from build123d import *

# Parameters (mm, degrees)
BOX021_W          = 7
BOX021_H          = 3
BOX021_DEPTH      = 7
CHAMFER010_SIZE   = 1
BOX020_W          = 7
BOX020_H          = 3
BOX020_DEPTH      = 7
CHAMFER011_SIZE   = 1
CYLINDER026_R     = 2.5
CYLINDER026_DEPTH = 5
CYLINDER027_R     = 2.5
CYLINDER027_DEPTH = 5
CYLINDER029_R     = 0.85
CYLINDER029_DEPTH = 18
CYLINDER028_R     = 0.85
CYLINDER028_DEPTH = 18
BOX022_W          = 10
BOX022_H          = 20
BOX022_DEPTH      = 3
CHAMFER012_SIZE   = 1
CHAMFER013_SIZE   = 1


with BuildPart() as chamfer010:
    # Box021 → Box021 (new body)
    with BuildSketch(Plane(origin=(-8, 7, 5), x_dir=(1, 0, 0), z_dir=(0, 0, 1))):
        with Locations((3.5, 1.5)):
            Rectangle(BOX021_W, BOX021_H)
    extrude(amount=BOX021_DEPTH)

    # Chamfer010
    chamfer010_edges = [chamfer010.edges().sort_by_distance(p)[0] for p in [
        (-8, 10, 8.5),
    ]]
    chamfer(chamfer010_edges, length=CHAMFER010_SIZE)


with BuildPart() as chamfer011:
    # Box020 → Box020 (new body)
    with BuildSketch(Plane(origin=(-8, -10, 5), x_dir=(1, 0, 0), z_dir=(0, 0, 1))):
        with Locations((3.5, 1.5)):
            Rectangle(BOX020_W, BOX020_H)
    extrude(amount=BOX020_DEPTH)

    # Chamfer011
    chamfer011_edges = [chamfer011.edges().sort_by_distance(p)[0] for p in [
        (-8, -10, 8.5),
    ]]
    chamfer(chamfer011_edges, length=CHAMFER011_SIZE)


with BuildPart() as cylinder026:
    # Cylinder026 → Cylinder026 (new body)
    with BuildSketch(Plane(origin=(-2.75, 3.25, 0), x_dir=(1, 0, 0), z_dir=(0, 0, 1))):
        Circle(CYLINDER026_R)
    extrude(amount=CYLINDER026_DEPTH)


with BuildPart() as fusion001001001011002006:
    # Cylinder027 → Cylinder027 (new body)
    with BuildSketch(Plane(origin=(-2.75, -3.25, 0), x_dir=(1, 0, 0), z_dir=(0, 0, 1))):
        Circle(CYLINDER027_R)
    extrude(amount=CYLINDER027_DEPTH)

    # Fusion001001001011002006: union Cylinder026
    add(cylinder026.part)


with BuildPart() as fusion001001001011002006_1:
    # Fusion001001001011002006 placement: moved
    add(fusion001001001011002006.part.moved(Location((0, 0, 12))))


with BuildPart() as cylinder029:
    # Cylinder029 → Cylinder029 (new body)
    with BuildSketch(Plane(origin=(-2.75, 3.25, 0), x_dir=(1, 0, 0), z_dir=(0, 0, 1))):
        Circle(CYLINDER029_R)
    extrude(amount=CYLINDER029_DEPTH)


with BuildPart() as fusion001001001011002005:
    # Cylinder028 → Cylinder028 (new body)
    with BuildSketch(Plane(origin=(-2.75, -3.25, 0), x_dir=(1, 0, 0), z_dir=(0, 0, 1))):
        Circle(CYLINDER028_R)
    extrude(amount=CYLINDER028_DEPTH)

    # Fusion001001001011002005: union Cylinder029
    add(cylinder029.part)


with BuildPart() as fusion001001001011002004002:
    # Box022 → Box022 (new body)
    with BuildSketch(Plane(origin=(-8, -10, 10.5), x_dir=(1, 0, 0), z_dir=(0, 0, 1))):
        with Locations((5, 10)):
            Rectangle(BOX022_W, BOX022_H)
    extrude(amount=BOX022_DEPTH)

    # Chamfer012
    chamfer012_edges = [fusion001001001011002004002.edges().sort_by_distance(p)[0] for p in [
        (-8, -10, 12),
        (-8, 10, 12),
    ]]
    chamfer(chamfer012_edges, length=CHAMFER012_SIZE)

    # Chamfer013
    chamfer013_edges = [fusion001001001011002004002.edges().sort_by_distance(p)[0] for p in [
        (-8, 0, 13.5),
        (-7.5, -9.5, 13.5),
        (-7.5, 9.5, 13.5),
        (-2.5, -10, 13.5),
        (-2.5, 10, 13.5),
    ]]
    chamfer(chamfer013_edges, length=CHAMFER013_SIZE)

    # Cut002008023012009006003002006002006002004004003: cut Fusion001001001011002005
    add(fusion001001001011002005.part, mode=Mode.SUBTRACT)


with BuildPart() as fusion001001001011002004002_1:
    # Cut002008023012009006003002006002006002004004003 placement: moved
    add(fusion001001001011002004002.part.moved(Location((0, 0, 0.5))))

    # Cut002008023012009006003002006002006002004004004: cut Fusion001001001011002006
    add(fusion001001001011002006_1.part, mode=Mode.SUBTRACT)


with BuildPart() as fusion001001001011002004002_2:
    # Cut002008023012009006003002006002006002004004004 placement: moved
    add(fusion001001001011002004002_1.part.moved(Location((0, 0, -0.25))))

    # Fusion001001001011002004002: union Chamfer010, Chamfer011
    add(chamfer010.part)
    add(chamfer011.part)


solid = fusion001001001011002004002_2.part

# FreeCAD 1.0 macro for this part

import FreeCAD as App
import Part
import Sketcher
from FreeCAD import Vector
Q = App.Units.Quantity


def edges_at(feature, points):
    """Names of the edges that pass closest to the given points."""
    edges = feature.Shape.Edges
    near = lambda p: min(range(len(edges)), key=lambda i: edges[i].distToShape(Part.Vertex(*p))[0])
    return sorted({f"Edge{near(p) + 1}" for p in points})


def add_polygon(sketch, points):
    """Adds a closed chain of lines whose ends are joined by coincident constraints."""
    first, n = sketch.GeometryCount, len(points)
    for a, b in zip(points, points[1:] + points[:1]):
        sketch.addGeometry(Part.LineSegment(App.Vector(*a, 0), App.Vector(*b, 0)), False)
    for i in range(n):
        sketch.addConstraint(Sketcher.Constraint("Coincident", first + i, 2, first + (i + 1) % n, 1))

doc = App.newDocument("Part")
body = doc.addObject("PartDesign::Body", "Body")

# Sketch on XY plane
sketch1 = body.newObject("Sketcher::SketchObject", "Sketch")
sketch1.AttachmentSupport = (doc.getObject("XY_Plane"), [""])
sketch1.MapMode = "FlatFace"
sketch1.AttachmentOffset = App.Placement(Vector(0, 0, 5), App.Rotation())
add_polygon(sketch1, [(-8, 10), (-8, 7), (-1, 7), (-1, 10)])  # lines 0-3
sketch1.addConstraint(Sketcher.Constraint("Vertical", 0))
sketch1.addConstraint(Sketcher.Constraint("Horizontal", 1))
sketch1.addConstraint(Sketcher.Constraint("Vertical", 2))
sketch1.addConstraint(Sketcher.Constraint("Horizontal", 3))
sketch1.addConstraint(Sketcher.Constraint("DistanceX", 1, 1, 1, 2, Q("7 mm")))
sketch1.addConstraint(Sketcher.Constraint("DistanceY", 0, 2, 0, 1, Q("3 mm")))
sketch1.addConstraint(Sketcher.Constraint("DistanceX", 0, 2, -1, 1, Q("8 mm")))
sketch1.addConstraint(Sketcher.Constraint("DistanceY", -1, 1, 0, 2, Q("7 mm")))
pad1 = body.newObject("PartDesign::Pad", "Pad")
pad1.Profile = sketch1
pad1.Length = 7
doc.recompute()

chamfer = body.newObject("PartDesign::Chamfer", "Chamfer")
chamfer.Base = (pad1, edges_at(pad1, [(-8, 10, 8.5)]))
chamfer.Size = 1
body2 = doc.addObject("PartDesign::Body", "Body001")

# Sketch on XY plane
sketch2 = body2.newObject("Sketcher::SketchObject", "Sketch001")
sketch2.AttachmentSupport = (doc.getObject("XY_Plane001"), [""])
sketch2.MapMode = "FlatFace"
sketch2.AttachmentOffset = App.Placement(Vector(0, 0, 5), App.Rotation())
add_polygon(sketch2, [(-8, -7), (-8, -10), (-1, -10), (-1, -7)])  # lines 0-3
sketch2.addConstraint(Sketcher.Constraint("Vertical", 0))
sketch2.addConstraint(Sketcher.Constraint("Horizontal", 1))
sketch2.addConstraint(Sketcher.Constraint("Vertical", 2))
sketch2.addConstraint(Sketcher.Constraint("Horizontal", 3))
sketch2.addConstraint(Sketcher.Constraint("DistanceX", 1, 1, 1, 2, Q("7 mm")))
sketch2.addConstraint(Sketcher.Constraint("DistanceY", 0, 2, 0, 1, Q("3 mm")))
sketch2.addConstraint(Sketcher.Constraint("DistanceX", 0, 2, -1, 1, Q("8 mm")))
sketch2.addConstraint(Sketcher.Constraint("DistanceY", 0, 2, -1, 1, Q("10 mm")))
pad2 = body2.newObject("PartDesign::Pad", "Pad001")
pad2.Profile = sketch2
pad2.Length = 7
doc.recompute()

chamfer2 = body2.newObject("PartDesign::Chamfer", "Chamfer001")
chamfer2.Base = (pad2, edges_at(pad2, [(-8, -10, 8.5)]))
chamfer2.Size = 1
body3 = doc.addObject("PartDesign::Body", "Body002")

# Sketch on XY plane
sketch3 = body3.newObject("Sketcher::SketchObject", "Sketch002")
sketch3.AttachmentSupport = (doc.getObject("XY_Plane002"), [""])
sketch3.MapMode = "FlatFace"
sketch3.addGeometry(Part.Circle(Vector(-2.75, 3.25, 0), Vector(0, 0, 1), 2.5), False)
sketch3.addConstraint(Sketcher.Constraint("Diameter", 0, Q("5 mm")))
sketch3.addConstraint(Sketcher.Constraint("DistanceX", 0, 3, -1, 1, Q("2.75 mm")))
sketch3.addConstraint(Sketcher.Constraint("DistanceY", -1, 1, 0, 3, Q("3.25 mm")))
pad3 = body3.newObject("PartDesign::Pad", "Pad002")
pad3.Profile = sketch3
pad3.Length = 5
body4 = doc.addObject("PartDesign::Body", "Body003")
body4.AllowCompound = True

# Sketch on XY plane
sketch4 = body4.newObject("Sketcher::SketchObject", "Sketch003")
sketch4.AttachmentSupport = (doc.getObject("XY_Plane003"), [""])
sketch4.MapMode = "FlatFace"
sketch4.addGeometry(Part.Circle(Vector(-2.75, -3.25, 0), Vector(0, 0, 1), 2.5), False)
sketch4.addConstraint(Sketcher.Constraint("Diameter", 0, Q("5 mm")))
sketch4.addConstraint(Sketcher.Constraint("DistanceX", 0, 3, -1, 1, Q("2.75 mm")))
sketch4.addConstraint(Sketcher.Constraint("DistanceY", 0, 3, -1, 1, Q("3.25 mm")))
pad4 = body4.newObject("PartDesign::Pad", "Pad003")
pad4.Profile = sketch4
pad4.Length = 5
doc.recompute()

boolean = body4.newObject("PartDesign::Boolean", "Boolean")
boolean.Type = "Fuse"
boolean.addObjects([body3])
body5 = doc.addObject("PartDesign::Body", "Body004")
body5.AllowCompound = True
doc.recompute()

body4.Placement = App.Placement(Vector(0, 0, 12), App.Rotation(Vector(0, 0, 1), 0))
boolean2 = body5.newObject("PartDesign::Boolean", "Boolean001")
boolean2.Type = "Fuse"
boolean2.addObjects([body4])
body6 = doc.addObject("PartDesign::Body", "Body005")

# Sketch on XY plane
sketch5 = body6.newObject("Sketcher::SketchObject", "Sketch004")
sketch5.AttachmentSupport = (doc.getObject("XY_Plane005"), [""])
sketch5.MapMode = "FlatFace"
sketch5.addGeometry(Part.Circle(Vector(-2.75, 3.25, 0), Vector(0, 0, 1), 0.85), False)
sketch5.addConstraint(Sketcher.Constraint("Diameter", 0, Q("1.7 mm")))
sketch5.addConstraint(Sketcher.Constraint("DistanceX", 0, 3, -1, 1, Q("2.75 mm")))
sketch5.addConstraint(Sketcher.Constraint("DistanceY", -1, 1, 0, 3, Q("3.25 mm")))
pad5 = body6.newObject("PartDesign::Pad", "Pad004")
pad5.Profile = sketch5
pad5.Length = 18
body7 = doc.addObject("PartDesign::Body", "Body006")
body7.AllowCompound = True

# Sketch on XY plane
sketch6 = body7.newObject("Sketcher::SketchObject", "Sketch005")
sketch6.AttachmentSupport = (doc.getObject("XY_Plane006"), [""])
sketch6.MapMode = "FlatFace"
sketch6.addGeometry(Part.Circle(Vector(-2.75, -3.25, 0), Vector(0, 0, 1), 0.85), False)
sketch6.addConstraint(Sketcher.Constraint("Diameter", 0, Q("1.7 mm")))
sketch6.addConstraint(Sketcher.Constraint("DistanceX", 0, 3, -1, 1, Q("2.75 mm")))
sketch6.addConstraint(Sketcher.Constraint("DistanceY", 0, 3, -1, 1, Q("3.25 mm")))
pad6 = body7.newObject("PartDesign::Pad", "Pad005")
pad6.Profile = sketch6
pad6.Length = 18
doc.recompute()

boolean3 = body7.newObject("PartDesign::Boolean", "Boolean002")
boolean3.Type = "Fuse"
boolean3.addObjects([body6])
body8 = doc.addObject("PartDesign::Body", "Body007")

# Sketch on XY plane
sketch7 = body8.newObject("Sketcher::SketchObject", "Sketch006")
sketch7.AttachmentSupport = (doc.getObject("XY_Plane007"), [""])
sketch7.MapMode = "FlatFace"
sketch7.AttachmentOffset = App.Placement(Vector(0, 0, 10.5), App.Rotation())
add_polygon(sketch7, [(-8, 10), (-8, -10), (2, -10), (2, 10)])  # lines 0-3
sketch7.addConstraint(Sketcher.Constraint("Vertical", 0))
sketch7.addConstraint(Sketcher.Constraint("Horizontal", 1))
sketch7.addConstraint(Sketcher.Constraint("Vertical", 2))
sketch7.addConstraint(Sketcher.Constraint("Horizontal", 3))
sketch7.addConstraint(Sketcher.Constraint("DistanceX", 1, 1, 1, 2, Q("10 mm")))
sketch7.addConstraint(Sketcher.Constraint("DistanceY", 0, 2, 0, 1, Q("20 mm")))
sketch7.addConstraint(Sketcher.Constraint("DistanceX", 0, 2, -1, 1, Q("8 mm")))
sketch7.addConstraint(Sketcher.Constraint("DistanceY", 0, 2, -1, 1, Q("10 mm")))
pad7 = body8.newObject("PartDesign::Pad", "Pad006")
pad7.Profile = sketch7
pad7.Length = 3
doc.recompute()

chamfer3 = body8.newObject("PartDesign::Chamfer", "Chamfer002")
chamfer3.Base = (pad7, edges_at(pad7, [(-8, -10, 12), (-8, 10, 12)]))
chamfer3.Size = 1
doc.recompute()

chamfer4 = body8.newObject("PartDesign::Chamfer", "Chamfer003")
chamfer4.Base = (chamfer3, edges_at(chamfer3, [
    (-8, 0, 13.5),
    (-7.5, -9.5, 13.5),
    (-7.5, 9.5, 13.5),
    (-2.5, -10, 13.5),
    (-2.5, 10, 13.5),
]))
chamfer4.Size = 1
doc.recompute()

boolean4 = body8.newObject("PartDesign::Boolean", "Boolean003")
boolean4.Type = "Cut"
boolean4.addObjects([body7])
body9 = doc.addObject("PartDesign::Body", "Body008")
doc.recompute()

body8.Placement = App.Placement(Vector(0, 0, 0.5), App.Rotation(Vector(0, 0, 1), 0))
boolean5 = body9.newObject("PartDesign::Boolean", "Boolean004")
boolean5.Type = "Fuse"
boolean5.addObjects([body8])
doc.recompute()

boolean6 = body9.newObject("PartDesign::Boolean", "Boolean005")
boolean6.Type = "Cut"
boolean6.addObjects([body5])
body10 = doc.addObject("PartDesign::Body", "Body009")
doc.recompute()

body9.Placement = App.Placement(Vector(0, 0, -0.25), App.Rotation(Vector(0, 0, 1), 0))
boolean7 = body10.newObject("PartDesign::Boolean", "Boolean006")
boolean7.Type = "Fuse"
boolean7.addObjects([body9])
doc.recompute()

boolean8 = body10.newObject("PartDesign::Boolean", "Boolean007")
boolean8.Type = "Fuse"
boolean8.addObjects([body])
doc.recompute()

boolean9 = body10.newObject("PartDesign::Boolean", "Boolean008")
boolean9.Type = "Fuse"
boolean9.addObjects([body2])

doc.recompute()
